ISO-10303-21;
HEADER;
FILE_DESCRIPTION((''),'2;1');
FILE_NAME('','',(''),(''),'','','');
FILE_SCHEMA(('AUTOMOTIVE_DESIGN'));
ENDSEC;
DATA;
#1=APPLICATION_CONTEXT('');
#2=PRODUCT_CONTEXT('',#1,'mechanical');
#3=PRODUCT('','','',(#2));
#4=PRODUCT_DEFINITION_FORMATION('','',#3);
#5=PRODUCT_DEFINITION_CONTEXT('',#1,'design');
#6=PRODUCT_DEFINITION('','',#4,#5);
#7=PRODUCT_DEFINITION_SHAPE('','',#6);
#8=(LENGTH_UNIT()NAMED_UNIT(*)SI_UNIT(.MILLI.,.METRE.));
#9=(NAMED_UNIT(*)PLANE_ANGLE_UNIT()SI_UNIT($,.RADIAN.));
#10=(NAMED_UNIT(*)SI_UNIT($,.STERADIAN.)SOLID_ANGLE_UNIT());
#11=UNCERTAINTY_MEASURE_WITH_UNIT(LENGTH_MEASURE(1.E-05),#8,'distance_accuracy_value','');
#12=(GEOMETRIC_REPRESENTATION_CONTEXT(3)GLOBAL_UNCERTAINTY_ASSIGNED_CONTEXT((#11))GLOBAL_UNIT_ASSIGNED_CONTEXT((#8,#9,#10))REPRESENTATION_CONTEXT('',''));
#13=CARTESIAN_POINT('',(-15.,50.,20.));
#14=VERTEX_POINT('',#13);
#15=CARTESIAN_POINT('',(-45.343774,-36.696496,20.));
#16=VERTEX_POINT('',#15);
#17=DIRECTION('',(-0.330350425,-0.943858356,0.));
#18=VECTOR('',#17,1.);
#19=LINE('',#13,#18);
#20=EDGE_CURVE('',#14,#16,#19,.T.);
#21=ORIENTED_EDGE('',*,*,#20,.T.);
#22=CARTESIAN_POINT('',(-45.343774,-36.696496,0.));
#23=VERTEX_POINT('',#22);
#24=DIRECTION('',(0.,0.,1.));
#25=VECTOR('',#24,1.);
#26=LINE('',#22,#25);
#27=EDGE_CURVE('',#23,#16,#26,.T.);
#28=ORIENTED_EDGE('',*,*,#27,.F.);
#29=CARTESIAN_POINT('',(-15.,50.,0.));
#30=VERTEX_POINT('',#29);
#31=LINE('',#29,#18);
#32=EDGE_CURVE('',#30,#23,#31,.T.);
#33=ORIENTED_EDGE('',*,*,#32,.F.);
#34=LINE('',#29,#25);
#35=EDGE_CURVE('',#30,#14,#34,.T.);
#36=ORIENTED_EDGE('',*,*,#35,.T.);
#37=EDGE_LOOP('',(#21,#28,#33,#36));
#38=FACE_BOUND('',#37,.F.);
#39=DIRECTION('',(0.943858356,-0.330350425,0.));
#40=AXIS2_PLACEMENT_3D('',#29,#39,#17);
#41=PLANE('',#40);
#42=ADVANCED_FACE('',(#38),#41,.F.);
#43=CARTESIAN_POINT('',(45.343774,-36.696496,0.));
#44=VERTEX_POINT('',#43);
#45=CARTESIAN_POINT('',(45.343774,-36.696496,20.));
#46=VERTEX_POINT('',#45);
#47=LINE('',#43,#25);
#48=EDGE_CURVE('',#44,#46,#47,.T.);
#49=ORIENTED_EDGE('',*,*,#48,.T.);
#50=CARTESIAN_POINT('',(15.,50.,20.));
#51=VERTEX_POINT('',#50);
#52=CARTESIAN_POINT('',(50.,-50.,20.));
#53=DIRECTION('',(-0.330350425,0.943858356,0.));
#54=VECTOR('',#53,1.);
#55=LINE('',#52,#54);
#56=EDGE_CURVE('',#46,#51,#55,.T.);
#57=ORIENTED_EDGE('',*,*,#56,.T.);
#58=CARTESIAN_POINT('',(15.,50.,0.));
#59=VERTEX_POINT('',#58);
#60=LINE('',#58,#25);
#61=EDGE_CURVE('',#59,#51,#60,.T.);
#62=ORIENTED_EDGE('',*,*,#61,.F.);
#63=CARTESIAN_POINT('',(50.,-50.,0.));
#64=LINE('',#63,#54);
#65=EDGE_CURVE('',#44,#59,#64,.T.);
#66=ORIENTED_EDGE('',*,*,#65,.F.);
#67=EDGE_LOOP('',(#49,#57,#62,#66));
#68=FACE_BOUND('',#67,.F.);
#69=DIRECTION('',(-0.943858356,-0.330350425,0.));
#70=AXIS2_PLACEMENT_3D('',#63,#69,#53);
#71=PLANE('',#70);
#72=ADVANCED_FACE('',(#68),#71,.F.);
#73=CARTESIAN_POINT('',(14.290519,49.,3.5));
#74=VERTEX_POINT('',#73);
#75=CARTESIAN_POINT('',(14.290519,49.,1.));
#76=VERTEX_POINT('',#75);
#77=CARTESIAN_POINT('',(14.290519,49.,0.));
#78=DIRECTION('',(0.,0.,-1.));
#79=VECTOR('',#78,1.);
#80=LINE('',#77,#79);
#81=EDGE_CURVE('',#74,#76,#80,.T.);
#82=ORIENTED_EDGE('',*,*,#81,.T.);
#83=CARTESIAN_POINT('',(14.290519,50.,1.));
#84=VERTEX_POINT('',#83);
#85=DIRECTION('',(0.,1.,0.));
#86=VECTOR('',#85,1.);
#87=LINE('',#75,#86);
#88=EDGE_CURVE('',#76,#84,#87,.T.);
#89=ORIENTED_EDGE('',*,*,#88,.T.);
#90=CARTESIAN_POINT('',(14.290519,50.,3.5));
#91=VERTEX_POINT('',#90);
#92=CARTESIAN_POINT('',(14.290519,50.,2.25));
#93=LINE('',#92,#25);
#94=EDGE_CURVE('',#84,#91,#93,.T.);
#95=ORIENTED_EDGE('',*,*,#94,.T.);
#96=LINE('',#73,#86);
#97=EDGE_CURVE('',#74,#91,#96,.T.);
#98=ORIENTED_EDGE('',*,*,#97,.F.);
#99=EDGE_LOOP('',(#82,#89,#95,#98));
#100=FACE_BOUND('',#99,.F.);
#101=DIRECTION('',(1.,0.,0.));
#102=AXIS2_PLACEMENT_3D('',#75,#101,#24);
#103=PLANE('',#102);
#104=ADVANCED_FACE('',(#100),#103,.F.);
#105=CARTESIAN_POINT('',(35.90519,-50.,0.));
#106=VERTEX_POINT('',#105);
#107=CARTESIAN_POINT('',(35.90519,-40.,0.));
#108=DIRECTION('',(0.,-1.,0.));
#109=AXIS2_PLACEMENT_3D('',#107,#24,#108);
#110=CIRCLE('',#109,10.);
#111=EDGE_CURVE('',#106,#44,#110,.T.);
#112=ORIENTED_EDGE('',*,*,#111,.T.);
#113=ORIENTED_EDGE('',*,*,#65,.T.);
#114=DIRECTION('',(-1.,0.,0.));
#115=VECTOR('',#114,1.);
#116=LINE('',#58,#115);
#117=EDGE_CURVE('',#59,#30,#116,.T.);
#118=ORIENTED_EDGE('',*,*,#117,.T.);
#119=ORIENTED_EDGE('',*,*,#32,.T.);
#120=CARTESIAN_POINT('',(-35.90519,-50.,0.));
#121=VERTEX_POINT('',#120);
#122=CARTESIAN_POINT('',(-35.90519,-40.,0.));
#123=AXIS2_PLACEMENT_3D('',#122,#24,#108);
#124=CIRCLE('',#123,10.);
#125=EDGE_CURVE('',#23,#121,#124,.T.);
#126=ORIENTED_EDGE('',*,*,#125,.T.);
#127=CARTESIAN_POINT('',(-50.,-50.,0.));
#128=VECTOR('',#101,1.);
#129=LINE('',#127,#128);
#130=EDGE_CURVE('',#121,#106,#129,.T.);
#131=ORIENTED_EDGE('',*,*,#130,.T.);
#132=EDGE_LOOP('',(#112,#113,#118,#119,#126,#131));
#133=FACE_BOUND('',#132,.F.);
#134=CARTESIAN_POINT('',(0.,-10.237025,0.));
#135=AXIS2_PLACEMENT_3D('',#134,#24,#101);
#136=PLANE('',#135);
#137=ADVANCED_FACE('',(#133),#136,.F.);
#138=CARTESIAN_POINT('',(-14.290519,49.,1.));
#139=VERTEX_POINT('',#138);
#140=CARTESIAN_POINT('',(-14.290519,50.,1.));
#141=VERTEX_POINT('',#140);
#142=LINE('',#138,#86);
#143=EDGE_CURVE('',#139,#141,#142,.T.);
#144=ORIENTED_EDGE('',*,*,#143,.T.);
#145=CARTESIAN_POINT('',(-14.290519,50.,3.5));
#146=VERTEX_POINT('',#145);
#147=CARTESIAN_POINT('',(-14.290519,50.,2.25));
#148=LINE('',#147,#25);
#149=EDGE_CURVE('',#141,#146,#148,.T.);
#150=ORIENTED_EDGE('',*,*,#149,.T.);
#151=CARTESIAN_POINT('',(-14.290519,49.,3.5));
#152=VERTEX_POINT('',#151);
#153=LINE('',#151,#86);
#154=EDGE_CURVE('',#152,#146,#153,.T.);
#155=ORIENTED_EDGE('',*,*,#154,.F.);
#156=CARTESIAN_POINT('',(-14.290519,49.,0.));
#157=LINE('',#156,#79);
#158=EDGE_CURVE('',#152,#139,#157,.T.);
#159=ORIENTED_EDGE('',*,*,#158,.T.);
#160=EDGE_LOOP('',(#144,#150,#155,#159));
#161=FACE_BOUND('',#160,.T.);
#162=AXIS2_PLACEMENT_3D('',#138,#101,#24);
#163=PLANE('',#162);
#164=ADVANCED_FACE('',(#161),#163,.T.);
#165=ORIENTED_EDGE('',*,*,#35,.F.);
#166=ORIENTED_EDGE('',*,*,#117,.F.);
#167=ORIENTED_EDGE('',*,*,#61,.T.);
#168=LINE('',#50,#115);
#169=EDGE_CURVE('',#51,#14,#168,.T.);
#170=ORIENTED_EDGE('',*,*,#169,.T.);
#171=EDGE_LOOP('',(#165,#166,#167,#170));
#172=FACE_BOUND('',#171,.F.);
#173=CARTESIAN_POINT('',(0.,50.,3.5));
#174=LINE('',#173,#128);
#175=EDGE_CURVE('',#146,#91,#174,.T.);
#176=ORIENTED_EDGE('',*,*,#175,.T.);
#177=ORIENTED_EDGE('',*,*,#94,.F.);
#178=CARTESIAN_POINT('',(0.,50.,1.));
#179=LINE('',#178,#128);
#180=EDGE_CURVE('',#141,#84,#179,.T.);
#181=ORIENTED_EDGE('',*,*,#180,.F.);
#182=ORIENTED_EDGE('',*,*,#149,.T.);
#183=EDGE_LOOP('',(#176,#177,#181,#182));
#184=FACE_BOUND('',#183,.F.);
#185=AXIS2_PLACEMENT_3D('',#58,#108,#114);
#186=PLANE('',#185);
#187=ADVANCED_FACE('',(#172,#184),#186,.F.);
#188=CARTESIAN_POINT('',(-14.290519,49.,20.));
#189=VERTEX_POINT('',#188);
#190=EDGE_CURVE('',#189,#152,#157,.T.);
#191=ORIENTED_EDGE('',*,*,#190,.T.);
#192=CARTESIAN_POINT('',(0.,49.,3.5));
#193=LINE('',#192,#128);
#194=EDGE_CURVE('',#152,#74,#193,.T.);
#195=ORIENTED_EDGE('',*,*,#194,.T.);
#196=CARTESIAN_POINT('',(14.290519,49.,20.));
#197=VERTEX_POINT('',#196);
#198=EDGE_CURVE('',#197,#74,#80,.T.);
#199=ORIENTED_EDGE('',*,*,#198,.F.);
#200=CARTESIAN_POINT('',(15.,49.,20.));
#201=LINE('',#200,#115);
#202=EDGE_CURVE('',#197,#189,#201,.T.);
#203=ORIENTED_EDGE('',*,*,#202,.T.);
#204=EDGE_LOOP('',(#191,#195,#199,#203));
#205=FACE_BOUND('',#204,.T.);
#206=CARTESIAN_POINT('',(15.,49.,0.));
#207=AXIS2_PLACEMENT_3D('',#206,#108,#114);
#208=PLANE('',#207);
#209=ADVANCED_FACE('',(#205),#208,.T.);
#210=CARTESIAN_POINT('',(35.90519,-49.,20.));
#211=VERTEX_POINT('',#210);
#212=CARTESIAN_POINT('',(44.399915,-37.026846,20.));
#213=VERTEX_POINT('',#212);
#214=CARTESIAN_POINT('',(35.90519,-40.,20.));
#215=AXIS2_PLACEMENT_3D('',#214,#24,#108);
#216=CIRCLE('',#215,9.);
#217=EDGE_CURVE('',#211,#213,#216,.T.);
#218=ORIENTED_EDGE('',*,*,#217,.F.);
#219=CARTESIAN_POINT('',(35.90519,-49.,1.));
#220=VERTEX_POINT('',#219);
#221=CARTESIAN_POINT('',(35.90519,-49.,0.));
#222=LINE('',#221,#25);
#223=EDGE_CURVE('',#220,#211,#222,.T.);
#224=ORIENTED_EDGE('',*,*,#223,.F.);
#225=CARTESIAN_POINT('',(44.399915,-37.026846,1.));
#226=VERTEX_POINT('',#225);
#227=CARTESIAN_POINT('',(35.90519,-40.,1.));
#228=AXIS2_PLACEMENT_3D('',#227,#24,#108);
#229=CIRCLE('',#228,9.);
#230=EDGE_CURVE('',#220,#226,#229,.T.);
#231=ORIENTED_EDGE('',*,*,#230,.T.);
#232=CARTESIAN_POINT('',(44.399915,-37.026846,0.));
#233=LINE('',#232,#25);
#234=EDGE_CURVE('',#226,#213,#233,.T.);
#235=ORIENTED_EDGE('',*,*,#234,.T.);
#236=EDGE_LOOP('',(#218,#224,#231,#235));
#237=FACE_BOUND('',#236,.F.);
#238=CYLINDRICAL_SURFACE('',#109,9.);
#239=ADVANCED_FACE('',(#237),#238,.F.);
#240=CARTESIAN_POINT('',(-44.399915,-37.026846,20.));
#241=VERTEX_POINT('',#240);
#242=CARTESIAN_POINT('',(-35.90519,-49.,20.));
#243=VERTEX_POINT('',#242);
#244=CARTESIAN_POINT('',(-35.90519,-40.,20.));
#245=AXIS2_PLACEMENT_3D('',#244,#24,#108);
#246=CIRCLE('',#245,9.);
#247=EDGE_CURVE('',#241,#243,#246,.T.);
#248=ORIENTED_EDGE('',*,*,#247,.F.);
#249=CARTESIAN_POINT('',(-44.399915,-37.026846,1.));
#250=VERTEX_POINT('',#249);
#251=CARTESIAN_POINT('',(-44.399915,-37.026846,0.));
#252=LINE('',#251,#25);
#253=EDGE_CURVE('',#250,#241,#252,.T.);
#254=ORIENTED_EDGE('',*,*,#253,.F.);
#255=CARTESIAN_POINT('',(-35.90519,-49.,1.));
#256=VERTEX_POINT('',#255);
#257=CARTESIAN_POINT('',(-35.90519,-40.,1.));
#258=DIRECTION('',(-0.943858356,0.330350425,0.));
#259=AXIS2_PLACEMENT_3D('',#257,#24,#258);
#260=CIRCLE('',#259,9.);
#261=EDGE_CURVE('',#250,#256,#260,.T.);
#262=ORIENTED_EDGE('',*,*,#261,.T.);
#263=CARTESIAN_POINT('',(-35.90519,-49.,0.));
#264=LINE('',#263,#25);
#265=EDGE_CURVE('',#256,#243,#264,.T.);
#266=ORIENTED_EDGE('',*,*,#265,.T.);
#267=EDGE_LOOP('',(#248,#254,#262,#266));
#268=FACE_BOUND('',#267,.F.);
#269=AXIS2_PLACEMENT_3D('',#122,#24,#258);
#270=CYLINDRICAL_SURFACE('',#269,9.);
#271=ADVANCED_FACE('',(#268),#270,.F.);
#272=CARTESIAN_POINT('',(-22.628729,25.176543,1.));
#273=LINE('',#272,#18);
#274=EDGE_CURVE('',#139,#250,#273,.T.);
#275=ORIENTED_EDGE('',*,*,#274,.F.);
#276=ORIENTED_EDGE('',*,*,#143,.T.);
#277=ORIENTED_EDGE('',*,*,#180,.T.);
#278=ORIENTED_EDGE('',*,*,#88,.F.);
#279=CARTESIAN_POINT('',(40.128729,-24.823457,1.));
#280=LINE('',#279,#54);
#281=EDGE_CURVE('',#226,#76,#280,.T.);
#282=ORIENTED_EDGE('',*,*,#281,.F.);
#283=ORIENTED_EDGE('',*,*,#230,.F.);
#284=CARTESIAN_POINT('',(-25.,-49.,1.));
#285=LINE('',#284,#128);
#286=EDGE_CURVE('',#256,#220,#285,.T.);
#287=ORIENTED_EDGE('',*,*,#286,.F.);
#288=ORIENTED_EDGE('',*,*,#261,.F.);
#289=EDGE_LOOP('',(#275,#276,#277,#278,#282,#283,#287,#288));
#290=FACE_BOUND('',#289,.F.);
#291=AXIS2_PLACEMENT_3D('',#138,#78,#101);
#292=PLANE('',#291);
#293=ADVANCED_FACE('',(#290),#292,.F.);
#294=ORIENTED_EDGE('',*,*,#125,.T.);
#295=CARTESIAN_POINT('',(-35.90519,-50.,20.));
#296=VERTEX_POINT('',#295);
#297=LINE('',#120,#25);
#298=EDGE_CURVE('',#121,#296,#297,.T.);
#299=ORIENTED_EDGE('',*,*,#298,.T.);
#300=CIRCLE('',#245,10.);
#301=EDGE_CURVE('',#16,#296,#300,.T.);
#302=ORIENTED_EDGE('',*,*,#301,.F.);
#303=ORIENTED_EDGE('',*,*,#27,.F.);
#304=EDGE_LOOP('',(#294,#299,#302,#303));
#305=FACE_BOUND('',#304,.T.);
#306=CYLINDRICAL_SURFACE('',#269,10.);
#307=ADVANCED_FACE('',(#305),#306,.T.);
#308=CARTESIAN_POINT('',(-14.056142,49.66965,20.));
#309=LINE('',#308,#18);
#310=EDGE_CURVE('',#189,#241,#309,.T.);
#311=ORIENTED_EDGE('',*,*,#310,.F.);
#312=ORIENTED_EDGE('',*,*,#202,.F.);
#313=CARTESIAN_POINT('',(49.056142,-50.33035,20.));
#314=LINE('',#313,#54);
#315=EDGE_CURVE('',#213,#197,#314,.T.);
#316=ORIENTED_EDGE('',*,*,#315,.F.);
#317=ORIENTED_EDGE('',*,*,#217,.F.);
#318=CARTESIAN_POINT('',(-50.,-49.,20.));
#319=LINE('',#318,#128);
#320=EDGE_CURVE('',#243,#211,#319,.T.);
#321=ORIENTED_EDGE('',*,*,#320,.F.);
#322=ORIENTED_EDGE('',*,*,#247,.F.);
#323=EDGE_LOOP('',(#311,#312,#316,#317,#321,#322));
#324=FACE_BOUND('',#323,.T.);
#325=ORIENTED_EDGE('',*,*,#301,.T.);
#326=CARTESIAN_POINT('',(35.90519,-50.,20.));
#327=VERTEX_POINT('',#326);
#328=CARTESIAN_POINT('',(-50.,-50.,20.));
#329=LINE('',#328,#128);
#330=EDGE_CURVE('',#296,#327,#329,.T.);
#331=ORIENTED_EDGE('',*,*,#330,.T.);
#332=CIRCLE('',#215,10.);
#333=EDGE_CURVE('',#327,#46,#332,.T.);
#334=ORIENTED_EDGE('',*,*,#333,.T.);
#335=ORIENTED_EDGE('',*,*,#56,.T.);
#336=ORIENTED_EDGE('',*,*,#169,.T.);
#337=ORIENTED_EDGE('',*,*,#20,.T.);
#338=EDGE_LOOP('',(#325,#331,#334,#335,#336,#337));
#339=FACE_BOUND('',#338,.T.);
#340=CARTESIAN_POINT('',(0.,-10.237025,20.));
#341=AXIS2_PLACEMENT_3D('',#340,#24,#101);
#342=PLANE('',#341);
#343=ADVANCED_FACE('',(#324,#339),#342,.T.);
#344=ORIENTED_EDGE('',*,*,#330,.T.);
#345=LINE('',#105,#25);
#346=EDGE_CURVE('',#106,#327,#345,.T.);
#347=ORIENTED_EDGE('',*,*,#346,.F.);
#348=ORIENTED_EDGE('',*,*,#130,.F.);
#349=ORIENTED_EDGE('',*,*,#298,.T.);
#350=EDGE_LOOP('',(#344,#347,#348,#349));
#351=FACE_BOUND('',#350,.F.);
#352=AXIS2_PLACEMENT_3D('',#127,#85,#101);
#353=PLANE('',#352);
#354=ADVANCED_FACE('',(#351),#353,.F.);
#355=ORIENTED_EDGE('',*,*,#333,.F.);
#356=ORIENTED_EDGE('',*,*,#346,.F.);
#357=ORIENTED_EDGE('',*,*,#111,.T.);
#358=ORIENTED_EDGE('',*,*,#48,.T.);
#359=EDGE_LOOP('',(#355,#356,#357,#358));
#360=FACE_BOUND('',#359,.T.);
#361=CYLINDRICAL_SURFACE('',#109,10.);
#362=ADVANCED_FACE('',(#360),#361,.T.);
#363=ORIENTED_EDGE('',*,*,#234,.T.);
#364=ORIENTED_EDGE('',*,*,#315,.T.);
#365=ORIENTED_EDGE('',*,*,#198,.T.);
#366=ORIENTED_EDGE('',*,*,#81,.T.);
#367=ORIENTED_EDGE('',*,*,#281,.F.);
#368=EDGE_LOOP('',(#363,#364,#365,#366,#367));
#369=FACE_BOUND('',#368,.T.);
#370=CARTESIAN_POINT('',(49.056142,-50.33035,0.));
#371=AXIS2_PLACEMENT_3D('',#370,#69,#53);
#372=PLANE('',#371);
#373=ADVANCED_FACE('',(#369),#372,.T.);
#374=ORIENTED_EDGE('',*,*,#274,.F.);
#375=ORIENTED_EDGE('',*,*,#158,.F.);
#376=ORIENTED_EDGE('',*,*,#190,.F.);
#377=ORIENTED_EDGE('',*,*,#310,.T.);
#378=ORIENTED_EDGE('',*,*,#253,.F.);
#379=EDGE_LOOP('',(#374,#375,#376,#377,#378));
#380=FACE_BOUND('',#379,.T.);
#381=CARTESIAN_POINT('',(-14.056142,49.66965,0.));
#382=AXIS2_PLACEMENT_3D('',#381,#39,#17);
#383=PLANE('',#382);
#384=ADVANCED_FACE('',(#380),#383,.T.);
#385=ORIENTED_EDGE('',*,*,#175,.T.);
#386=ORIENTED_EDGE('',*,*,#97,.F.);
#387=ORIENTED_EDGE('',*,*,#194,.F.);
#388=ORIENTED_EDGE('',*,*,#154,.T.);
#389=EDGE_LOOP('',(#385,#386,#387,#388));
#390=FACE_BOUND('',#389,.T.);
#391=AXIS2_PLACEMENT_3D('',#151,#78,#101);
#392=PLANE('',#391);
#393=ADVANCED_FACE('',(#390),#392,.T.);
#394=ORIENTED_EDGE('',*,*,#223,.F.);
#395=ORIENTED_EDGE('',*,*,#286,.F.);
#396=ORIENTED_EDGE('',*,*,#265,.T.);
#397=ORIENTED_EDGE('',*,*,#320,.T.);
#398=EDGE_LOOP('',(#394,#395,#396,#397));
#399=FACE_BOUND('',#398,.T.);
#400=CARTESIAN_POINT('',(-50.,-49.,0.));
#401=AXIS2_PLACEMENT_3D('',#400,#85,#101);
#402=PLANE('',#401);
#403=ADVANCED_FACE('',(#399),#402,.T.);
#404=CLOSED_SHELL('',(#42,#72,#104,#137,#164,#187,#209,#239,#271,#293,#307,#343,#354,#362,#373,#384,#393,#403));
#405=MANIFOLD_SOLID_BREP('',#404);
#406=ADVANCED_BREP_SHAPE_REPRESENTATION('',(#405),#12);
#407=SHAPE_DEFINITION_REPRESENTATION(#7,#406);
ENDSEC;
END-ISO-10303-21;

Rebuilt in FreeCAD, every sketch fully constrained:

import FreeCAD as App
import Part
import Sketcher

V = App.Vector


def edges_at(feature, points):
    """Names of the edges that pass closest to the given points."""
    edges = feature.Shape.Edges
    near = lambda p: min(range(len(edges)), key=lambda i: edges[i].distToShape(Part.Vertex(*p))[0])
    return sorted({f"Edge{near(p) + 1}" for p in points})


def faces_at(feature, points):
    """Names of the faces that lie closest to the given points."""
    faces = feature.Shape.Faces
    near = lambda p: min(range(len(faces)), key=lambda i: faces[i].distToShape(Part.Vertex(*p))[0])
    return sorted({f"Face{near(p) + 1}" for p in points})


def add_polygon(sketch, points):
    """Adds a closed chain of lines whose ends are joined by coincident constraints."""
    first, n = sketch.GeometryCount, len(points)
    for a, b in zip(points, points[1:] + points[:1]):
        sketch.addGeometry(Part.LineSegment(App.Vector(*a, 0), App.Vector(*b, 0)), False)
    for i in range(n):
        sketch.addConstraint(Sketcher.Constraint("Coincident", first + i, 2, first + (i + 1) % n, 1))

doc = App.newDocument("Part")
body = doc.addObject("PartDesign::Body", "Body")

sketch1 = body.newObject("Sketcher::SketchObject", "Sketch")
sketch1.AttachmentSupport = (doc.getObject("XY_Plane"), [""])
sketch1.MapMode = "FlatFace"
add_polygon(sketch1, [(-15, 50), (-50, -50), (50, -50), (15, 50)])
sketch1.addConstraint([
    Sketcher.Constraint("Horizontal", 1),
    Sketcher.Constraint("Horizontal", 3),
    Sketcher.Constraint("Equal", 0, 2),
    Sketcher.Constraint("DistanceX", 1, 1, 1, 2, 100.0),
    Sketcher.Constraint("DistanceX", 3, 2, 3, 1, 30.0),
    Sketcher.Constraint("DistanceX", 0, 2, -1, 1, 50.0),
    Sketcher.Constraint("DistanceY", 0, 2, -1, 1, 50.0),
    Sketcher.Constraint("DistanceY", -1, 1, 2, 2, 50.0),
])
pad1 = body.newObject("PartDesign::Pad", "Pad")
pad1.Profile = sketch1
pad1.Length = 20
doc.recompute()

fillet = body.newObject("PartDesign::Fillet", "Fillet")
fillet.Base = (pad1, edges_at(pad1, [(-50, -50, 10), (50, -50, 10)]))
fillet.Radius = 10
doc.recompute()

thickness = body.newObject("PartDesign::Thickness", "Thickness")
thickness.Base = (fillet, faces_at(fillet, [(0, 0, 20)]))
thickness.Value = 1
thickness.Reversed = True
thickness.Join = "Arc"

sketch2 = body.newObject("Sketcher::SketchObject", "Sketch001")
sketch2.AttachmentSupport = (doc.getObject("XZ_Plane"), [""])
sketch2.MapMode = "FlatFace"
sketch2.AttachmentOffset = App.Placement(V(0, 0, -49), App.Rotation())
add_polygon(sketch2, [(-14.290519, 3.5), (-14.290519, 1), (14.290519, 1), (14.290519, 3.5)])
sketch2.addConstraint([
    Sketcher.Constraint("Vertical", 0),
    Sketcher.Constraint("Horizontal", 1),
    Sketcher.Constraint("Vertical", 2),
    Sketcher.Constraint("Horizontal", 3),
    Sketcher.Constraint("DistanceY", 0, 2, 0, 1, 2.5),
    Sketcher.Constraint("DistanceY", -1, 1, 0, 2, 1.0),
    Sketcher.Constraint("DistanceX", 1, 1, 1, 2, 28.581038),
    Sketcher.Constraint("DistanceX", 0, 2, -1, 1, 14.290519),
])
pocket1 = body.newObject("PartDesign::Pocket", "Pocket")
pocket1.Profile = sketch2
pocket1.Type = "ThroughAll"

doc.recompute()
